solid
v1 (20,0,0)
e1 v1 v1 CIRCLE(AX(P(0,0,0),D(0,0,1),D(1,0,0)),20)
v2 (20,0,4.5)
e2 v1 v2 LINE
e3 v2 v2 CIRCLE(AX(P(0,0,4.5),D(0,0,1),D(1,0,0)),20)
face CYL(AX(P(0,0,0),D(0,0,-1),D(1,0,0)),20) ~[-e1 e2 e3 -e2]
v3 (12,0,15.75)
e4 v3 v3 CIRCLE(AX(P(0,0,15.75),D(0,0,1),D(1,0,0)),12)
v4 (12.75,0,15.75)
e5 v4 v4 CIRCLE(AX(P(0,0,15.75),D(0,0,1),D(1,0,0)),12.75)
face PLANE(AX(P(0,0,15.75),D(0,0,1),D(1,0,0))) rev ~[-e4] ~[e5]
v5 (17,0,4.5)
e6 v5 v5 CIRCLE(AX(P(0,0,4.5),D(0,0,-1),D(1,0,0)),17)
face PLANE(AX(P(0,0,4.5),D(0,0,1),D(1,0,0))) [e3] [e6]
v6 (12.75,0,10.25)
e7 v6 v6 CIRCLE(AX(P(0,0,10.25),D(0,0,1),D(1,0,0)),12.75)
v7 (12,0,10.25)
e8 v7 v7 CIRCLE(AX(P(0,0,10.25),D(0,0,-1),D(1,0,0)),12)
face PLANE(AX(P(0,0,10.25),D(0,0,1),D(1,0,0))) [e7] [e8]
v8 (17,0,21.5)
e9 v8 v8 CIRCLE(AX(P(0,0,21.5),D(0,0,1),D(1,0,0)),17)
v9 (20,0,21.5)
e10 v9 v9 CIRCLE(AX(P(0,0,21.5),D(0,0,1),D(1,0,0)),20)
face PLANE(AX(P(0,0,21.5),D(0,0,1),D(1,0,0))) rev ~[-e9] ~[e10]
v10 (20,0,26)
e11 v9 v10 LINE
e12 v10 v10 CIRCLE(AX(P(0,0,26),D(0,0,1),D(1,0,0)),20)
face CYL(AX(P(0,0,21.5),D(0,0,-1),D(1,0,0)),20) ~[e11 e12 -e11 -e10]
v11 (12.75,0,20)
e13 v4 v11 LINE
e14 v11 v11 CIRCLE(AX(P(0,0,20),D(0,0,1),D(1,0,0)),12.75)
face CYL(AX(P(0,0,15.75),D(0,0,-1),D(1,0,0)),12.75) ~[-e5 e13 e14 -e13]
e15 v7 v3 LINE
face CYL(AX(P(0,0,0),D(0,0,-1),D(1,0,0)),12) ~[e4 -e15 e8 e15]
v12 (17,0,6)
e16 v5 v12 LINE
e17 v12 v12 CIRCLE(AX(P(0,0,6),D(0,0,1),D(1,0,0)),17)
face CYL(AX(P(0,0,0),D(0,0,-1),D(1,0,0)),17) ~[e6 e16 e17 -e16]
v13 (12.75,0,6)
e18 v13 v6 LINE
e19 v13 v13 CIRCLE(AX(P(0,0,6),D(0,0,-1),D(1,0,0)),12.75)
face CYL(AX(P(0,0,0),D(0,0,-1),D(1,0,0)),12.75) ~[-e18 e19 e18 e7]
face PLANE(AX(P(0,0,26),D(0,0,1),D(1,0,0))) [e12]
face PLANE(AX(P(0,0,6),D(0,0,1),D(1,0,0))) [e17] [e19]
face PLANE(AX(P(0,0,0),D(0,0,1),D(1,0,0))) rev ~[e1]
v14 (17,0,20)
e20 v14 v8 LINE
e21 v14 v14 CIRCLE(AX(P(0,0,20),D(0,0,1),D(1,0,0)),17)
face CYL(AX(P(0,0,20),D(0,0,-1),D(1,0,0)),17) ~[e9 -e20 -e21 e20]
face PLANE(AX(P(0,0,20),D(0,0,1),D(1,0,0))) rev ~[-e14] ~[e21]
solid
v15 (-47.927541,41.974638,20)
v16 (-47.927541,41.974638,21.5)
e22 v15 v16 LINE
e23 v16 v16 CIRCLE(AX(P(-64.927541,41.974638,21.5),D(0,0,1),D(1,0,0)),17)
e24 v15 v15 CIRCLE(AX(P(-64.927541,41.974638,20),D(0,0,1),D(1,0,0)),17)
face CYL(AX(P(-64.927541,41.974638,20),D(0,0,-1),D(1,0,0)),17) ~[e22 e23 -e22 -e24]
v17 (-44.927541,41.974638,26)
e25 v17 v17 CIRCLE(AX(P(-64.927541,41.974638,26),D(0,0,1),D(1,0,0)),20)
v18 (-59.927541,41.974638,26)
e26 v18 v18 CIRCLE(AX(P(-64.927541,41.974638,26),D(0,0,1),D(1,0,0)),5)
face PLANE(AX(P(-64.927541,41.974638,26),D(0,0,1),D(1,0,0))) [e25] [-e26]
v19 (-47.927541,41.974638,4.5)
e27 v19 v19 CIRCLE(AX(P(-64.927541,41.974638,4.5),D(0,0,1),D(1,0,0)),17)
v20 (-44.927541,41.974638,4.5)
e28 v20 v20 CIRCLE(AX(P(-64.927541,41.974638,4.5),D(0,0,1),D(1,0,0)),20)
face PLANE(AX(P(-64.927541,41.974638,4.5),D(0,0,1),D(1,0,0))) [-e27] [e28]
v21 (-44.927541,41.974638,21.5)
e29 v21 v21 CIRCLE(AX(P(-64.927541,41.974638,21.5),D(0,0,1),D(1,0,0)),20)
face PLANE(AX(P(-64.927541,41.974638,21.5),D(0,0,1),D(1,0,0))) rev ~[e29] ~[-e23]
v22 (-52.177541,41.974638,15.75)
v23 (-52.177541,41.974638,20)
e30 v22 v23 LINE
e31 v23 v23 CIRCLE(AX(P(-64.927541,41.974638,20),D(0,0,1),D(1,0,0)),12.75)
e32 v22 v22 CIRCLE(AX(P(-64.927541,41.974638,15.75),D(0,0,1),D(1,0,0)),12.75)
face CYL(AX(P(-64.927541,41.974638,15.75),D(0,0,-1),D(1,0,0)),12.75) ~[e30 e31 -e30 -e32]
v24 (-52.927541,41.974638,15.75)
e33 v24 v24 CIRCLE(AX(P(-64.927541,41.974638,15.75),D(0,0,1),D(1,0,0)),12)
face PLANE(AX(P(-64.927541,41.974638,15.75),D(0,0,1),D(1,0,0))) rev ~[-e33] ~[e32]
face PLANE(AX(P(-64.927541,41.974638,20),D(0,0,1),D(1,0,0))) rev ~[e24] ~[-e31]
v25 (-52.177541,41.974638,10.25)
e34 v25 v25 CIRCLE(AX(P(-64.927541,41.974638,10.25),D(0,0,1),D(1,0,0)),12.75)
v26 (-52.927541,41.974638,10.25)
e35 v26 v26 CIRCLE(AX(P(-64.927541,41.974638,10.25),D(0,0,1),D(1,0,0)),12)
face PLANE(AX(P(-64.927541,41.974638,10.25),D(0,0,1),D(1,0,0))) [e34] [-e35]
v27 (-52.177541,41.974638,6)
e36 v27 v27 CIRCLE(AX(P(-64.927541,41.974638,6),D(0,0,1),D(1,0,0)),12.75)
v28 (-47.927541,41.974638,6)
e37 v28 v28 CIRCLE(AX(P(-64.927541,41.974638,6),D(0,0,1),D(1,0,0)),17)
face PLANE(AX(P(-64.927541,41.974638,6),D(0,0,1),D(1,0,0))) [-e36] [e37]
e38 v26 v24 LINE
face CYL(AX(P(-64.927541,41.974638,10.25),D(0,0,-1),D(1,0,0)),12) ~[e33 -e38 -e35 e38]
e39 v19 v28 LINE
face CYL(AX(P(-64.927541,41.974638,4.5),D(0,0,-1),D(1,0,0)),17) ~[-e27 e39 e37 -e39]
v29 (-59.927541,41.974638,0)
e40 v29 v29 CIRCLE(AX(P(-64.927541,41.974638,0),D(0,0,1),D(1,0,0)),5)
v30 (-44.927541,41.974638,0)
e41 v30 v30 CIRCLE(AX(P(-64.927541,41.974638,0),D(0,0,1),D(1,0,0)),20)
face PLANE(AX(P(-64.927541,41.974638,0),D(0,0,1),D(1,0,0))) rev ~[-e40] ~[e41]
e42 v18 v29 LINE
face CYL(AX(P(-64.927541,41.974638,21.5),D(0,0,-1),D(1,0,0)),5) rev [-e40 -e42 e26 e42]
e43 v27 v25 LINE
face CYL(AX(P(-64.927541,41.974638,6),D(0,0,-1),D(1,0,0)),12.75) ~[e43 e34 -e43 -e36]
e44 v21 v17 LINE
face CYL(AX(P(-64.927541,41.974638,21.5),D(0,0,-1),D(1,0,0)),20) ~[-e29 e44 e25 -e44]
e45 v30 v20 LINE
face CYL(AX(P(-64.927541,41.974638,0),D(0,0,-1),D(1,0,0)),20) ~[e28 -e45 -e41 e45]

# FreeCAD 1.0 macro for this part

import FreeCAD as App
import Part
import Sketcher

V = App.Vector
Q = App.Units.Quantity

doc = App.newDocument("Part")
body = doc.addObject("PartDesign::Body", "Body")

sketch1 = body.newObject("Sketcher::SketchObject", "Sketch")
sketch1.AttachmentSupport = (doc.getObject("XY_Plane"), [""])
sketch1.MapMode = "FlatFace"
sketch1.addGeometry(Part.Circle(V(0, 0, 0), V(0, 0, 1), 20), False)
sketch1.addConstraint([
    Sketcher.Constraint("Coincident", 0, 3, -1, 1),
    Sketcher.Constraint("Diameter", 0, Q("40 mm")),
])
pad1 = body.newObject("PartDesign::Pad", "Pad")
pad1.Profile = sketch1
pad1.Length = 4.5

sketch2 = body.newObject("Sketcher::SketchObject", "Sketch001")
sketch2.AttachmentSupport = (doc.getObject("XY_Plane"), [""])
sketch2.MapMode = "FlatFace"
sketch2.addGeometry(Part.Circle(V(0, 0, 0), V(0, 0, 1), 17), False)
sketch2.addConstraint([
    Sketcher.Constraint("Coincident", 0, 3, -1, 1),
    Sketcher.Constraint("Diameter", 0, Q("34 mm")),
])
pad2 = body.newObject("PartDesign::Pad", "Pad001")
pad2.Profile = sketch2
pad2.Length = 6

sketch3 = body.newObject("Sketcher::SketchObject", "Sketch002")
sketch3.AttachmentSupport = (doc.getObject("XY_Plane"), [""])
sketch3.MapMode = "FlatFace"
sketch3.addGeometry(Part.Circle(V(0, 0, 0), V(0, 0, 1), 13), False)
sketch3.addConstraint([
    Sketcher.Constraint("Coincident", 0, 3, -1, 1),
    Sketcher.Constraint("Diameter", 0, Q("25.5 mm")),
])
pad3 = body.newObject("PartDesign::Pad", "Pad002")
pad3.Profile = sketch3
pad3.Length = 10.25

sketch4 = body.newObject("Sketcher::SketchObject", "Sketch003")
sketch4.AttachmentSupport = (doc.getObject("XY_Plane"), [""])
sketch4.MapMode = "FlatFace"
sketch4.addGeometry(Part.Circle(V(0, 0, 0), V(0, 0, 1), 12), False)
sketch4.addConstraint([
    Sketcher.Constraint("Coincident", 0, 3, -1, 1),
    Sketcher.Constraint("Diameter", 0, Q("24 mm")),
])
pad4 = body.newObject("PartDesign::Pad", "Pad003")
pad4.Profile = sketch4
pad4.Length = 15.75

sketch5 = body.newObject("Sketcher::SketchObject", "Sketch004")
sketch5.AttachmentSupport = (doc.getObject("XY_Plane"), [""])
sketch5.MapMode = "FlatFace"
sketch5.AttachmentOffset = App.Placement(V(0, 0, 15.75), App.Rotation())
sketch5.addGeometry(Part.Circle(V(0, 0, 0), V(0, 0, 1), 13), False)
sketch5.addConstraint([
    Sketcher.Constraint("Coincident", 0, 3, -1, 1),
    Sketcher.Constraint("Diameter", 0, Q("25.5 mm")),
])
pad5 = body.newObject("PartDesign::Pad", "Pad004")
pad5.Profile = sketch5
pad5.Length = 4.25

sketch6 = body.newObject("Sketcher::SketchObject", "Sketch005")
sketch6.AttachmentSupport = (doc.getObject("XY_Plane"), [""])
sketch6.MapMode = "FlatFace"
sketch6.AttachmentOffset = App.Placement(V(0, 0, 20), App.Rotation())
sketch6.addGeometry(Part.Circle(V(0, 0, 0), V(0, 0, 1), 17), False)
sketch6.addConstraint([
    Sketcher.Constraint("Coincident", 0, 3, -1, 1),
    Sketcher.Constraint("Diameter", 0, Q("34 mm")),
])
pad6 = body.newObject("PartDesign::Pad", "Pad005")
pad6.Profile = sketch6
pad6.Length = 1.5

sketch7 = body.newObject("Sketcher::SketchObject", "Sketch006")
sketch7.AttachmentSupport = (doc.getObject("XY_Plane"), [""])
sketch7.MapMode = "FlatFace"
sketch7.AttachmentOffset = App.Placement(V(0, 0, 21.5), App.Rotation())
sketch7.addGeometry(Part.Circle(V(0, 0, 0), V(0, 0, 1), 20), False)
sketch7.addConstraint([
    Sketcher.Constraint("Coincident", 0, 3, -1, 1),
    Sketcher.Constraint("Diameter", 0, Q("40 mm")),
])
pad7 = body.newObject("PartDesign::Pad", "Pad006")
pad7.Profile = sketch7
pad7.Length = 4.5
body2 = doc.addObject("PartDesign::Body", "Body001")

sketch8 = body2.newObject("Sketcher::SketchObject", "Sketch007")
sketch8.AttachmentSupport = (doc.getObject("XY_Plane001"), [""])
sketch8.MapMode = "FlatFace"
sketch8.addGeometry([
    Part.Circle(V(-65, 42, 0), V(0, 0, 1), 20),
    Part.Circle(V(-65, 42, 0), V(0, 0, 1), 5),
], False)
sketch8.addConstraint([
    Sketcher.Constraint("Coincident", 1, 3, 0, 3),
    Sketcher.Constraint("Diameter", 0, Q("40 mm")),
    Sketcher.Constraint("Diameter", 1, Q("10 mm")),
    Sketcher.Constraint("DistanceX", 0, 3, -1, 1, Q("64.927541 mm")),
    Sketcher.Constraint("DistanceY", -1, 1, 0, 3, Q("41.974638 mm")),
])
pad8 = body2.newObject("PartDesign::Pad", "Pad007")
pad8.Profile = sketch8
pad8.Length = 4.5

sketch9 = body2.newObject("Sketcher::SketchObject", "Sketch008")
sketch9.AttachmentSupport = (doc.getObject("XY_Plane001"), [""])
sketch9.MapMode = "FlatFace"
sketch9.AttachmentOffset = App.Placement(V(0, 0, 4.5), App.Rotation())
sketch9.addGeometry([
    Part.Circle(V(-65, 42, 0), V(0, 0, 1), 17),
    Part.Circle(V(-65, 42, 0), V(0, 0, 1), 5),
], False)
sketch9.addConstraint([
    Sketcher.Constraint("Coincident", 1, 3, 0, 3),
    Sketcher.Constraint("Diameter", 0, Q("34 mm")),
    Sketcher.Constraint("Diameter", 1, Q("10 mm")),
    Sketcher.Constraint("DistanceX", 0, 3, -1, 1, Q("64.927541 mm")),
    Sketcher.Constraint("DistanceY", -1, 1, 0, 3, Q("41.974638 mm")),
])
pad9 = body2.newObject("PartDesign::Pad", "Pad008")
pad9.Profile = sketch9
pad9.Length = 1.5

sketch10 = body2.newObject("Sketcher::SketchObject", "Sketch009")
sketch10.AttachmentSupport = (doc.getObject("XY_Plane001"), [""])
sketch10.MapMode = "FlatFace"
sketch10.AttachmentOffset = App.Placement(V(0, 0, 6), App.Rotation())
sketch10.addGeometry([
    Part.Circle(V(-65, 42, 0), V(0, 0, 1), 13),
    Part.Circle(V(-65, 42, 0), V(0, 0, 1), 5),
], False)
sketch10.addConstraint([
    Sketcher.Constraint("Coincident", 1, 3, 0, 3),
    Sketcher.Constraint("Diameter", 1, Q("10 mm")),
    Sketcher.Constraint("Diameter", 0, Q("25.5 mm")),
    Sketcher.Constraint("DistanceX", 0, 3, -1, 1, Q("64.927541 mm")),
    Sketcher.Constraint("DistanceY", -1, 1, 0, 3, Q("41.974638 mm")),
])
pad10 = body2.newObject("PartDesign::Pad", "Pad009")
pad10.Profile = sketch10
pad10.Length = 4.25

sketch11 = body2.newObject("Sketcher::SketchObject", "Sketch010")
sketch11.AttachmentSupport = (doc.getObject("XY_Plane001"), [""])
sketch11.MapMode = "FlatFace"
sketch11.AttachmentOffset = App.Placement(V(0, 0, 10.25), App.Rotation())
sketch11.addGeometry([
    Part.Circle(V(-65, 42, 0), V(0, 0, 1), 12),
    Part.Circle(V(-65, 42, 0), V(0, 0, 1), 5),
], False)
sketch11.addConstraint([
    Sketcher.Constraint("Coincident", 1, 3, 0, 3),
    Sketcher.Constraint("Diameter", 0, Q("24 mm")),
    Sketcher.Constraint("Diameter", 1, Q("10 mm")),
    Sketcher.Constraint("DistanceX", 0, 3, -1, 1, Q("64.927541 mm")),
    Sketcher.Constraint("DistanceY", -1, 1, 0, 3, Q("41.974638 mm")),
])
pad11 = body2.newObject("PartDesign::Pad", "Pad010")
pad11.Profile = sketch11
pad11.Length = 5.5

sketch12 = body2.newObject("Sketcher::SketchObject", "Sketch011")
sketch12.AttachmentSupport = (doc.getObject("XY_Plane001"), [""])
sketch12.MapMode = "FlatFace"
sketch12.AttachmentOffset = App.Placement(V(0, 0, 15.75), App.Rotation())
sketch12.addGeometry([
    Part.Circle(V(-65, 42, 0), V(0, 0, 1), 13),
    Part.Circle(V(-65, 42, 0), V(0, 0, 1), 5),
], False)
sketch12.addConstraint([
    Sketcher.Constraint("Coincident", 1, 3, 0, 3),
    Sketcher.Constraint("Diameter", 1, Q("10 mm")),
    Sketcher.Constraint("Diameter", 0, Q("25.5 mm")),
    Sketcher.Constraint("DistanceX", 0, 3, -1, 1, Q("64.927541 mm")),
    Sketcher.Constraint("DistanceY", -1, 1, 0, 3, Q("41.974638 mm")),
])
pad12 = body2.newObject("PartDesign::Pad", "Pad011")
pad12.Profile = sketch12
pad12.Length = 4.25

sketch13 = body2.newObject("Sketcher::SketchObject", "Sketch012")
sketch13.AttachmentSupport = (doc.getObject("XY_Plane001"), [""])
sketch13.MapMode = "FlatFace"
sketch13.AttachmentOffset = App.Placement(V(0, 0, 20), App.Rotation())
sketch13.addGeometry([
    Part.Circle(V(-65, 42, 0), V(0, 0, 1), 17),
    Part.Circle(V(-65, 42, 0), V(0, 0, 1), 5),
], False)
sketch13.addConstraint([
    Sketcher.Constraint("Coincident", 1, 3, 0, 3),
    Sketcher.Constraint("Diameter", 0, Q("34 mm")),
    Sketcher.Constraint("Diameter", 1, Q("10 mm")),
    Sketcher.Constraint("DistanceX", 0, 3, -1, 1, Q("64.927541 mm")),
    Sketcher.Constraint("DistanceY", -1, 1, 0, 3, Q("41.974638 mm")),
])
pad13 = body2.newObject("PartDesign::Pad", "Pad012")
pad13.Profile = sketch13
pad13.Length = 1.5

sketch14 = body2.newObject("Sketcher::SketchObject", "Sketch013")
sketch14.AttachmentSupport = (doc.getObject("XY_Plane001"), [""])
sketch14.MapMode = "FlatFace"
sketch14.AttachmentOffset = App.Placement(V(0, 0, 21.5), App.Rotation())
sketch14.addGeometry([
    Part.Circle(V(-65, 42, 0), V(0, 0, 1), 20),
    Part.Circle(V(-65, 42, 0), V(0, 0, 1), 5),
], False)
sketch14.addConstraint([
    Sketcher.Constraint("Coincident", 1, 3, 0, 3),
    Sketcher.Constraint("Diameter", 0, Q("40 mm")),
    Sketcher.Constraint("Diameter", 1, Q("10 mm")),
    Sketcher.Constraint("DistanceX", 0, 3, -1, 1, Q("64.927541 mm")),
    Sketcher.Constraint("DistanceY", -1, 1, 0, 3, Q("41.974638 mm")),
])
pad14 = body2.newObject("PartDesign::Pad", "Pad013")
pad14.Profile = sketch14
pad14.Length = 4.5

doc.recompute()
